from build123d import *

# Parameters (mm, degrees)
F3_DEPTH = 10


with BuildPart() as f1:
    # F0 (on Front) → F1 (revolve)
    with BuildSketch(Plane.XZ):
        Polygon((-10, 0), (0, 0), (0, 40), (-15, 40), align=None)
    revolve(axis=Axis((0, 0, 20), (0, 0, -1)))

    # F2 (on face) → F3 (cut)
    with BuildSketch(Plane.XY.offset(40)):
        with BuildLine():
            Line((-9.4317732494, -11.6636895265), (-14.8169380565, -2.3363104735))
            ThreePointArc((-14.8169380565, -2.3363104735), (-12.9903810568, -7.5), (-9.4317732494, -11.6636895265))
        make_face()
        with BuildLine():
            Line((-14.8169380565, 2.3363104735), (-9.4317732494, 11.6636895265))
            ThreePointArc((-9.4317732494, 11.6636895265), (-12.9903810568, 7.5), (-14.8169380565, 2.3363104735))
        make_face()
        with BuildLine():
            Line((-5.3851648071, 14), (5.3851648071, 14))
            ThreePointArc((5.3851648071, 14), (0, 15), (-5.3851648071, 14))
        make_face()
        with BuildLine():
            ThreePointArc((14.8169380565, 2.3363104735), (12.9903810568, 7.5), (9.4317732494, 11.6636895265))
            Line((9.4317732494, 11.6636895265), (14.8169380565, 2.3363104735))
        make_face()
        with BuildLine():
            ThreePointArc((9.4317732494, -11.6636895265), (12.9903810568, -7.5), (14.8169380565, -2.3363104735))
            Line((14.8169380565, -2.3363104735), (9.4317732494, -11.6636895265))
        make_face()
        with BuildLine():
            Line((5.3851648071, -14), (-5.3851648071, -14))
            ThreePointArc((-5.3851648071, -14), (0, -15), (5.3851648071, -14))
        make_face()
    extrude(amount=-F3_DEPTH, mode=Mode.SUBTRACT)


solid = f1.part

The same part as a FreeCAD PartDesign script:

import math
import FreeCAD as App
import Part
import Sketcher
from FreeCAD import Vector
Q = App.Units.Quantity

doc = App.newDocument("Part")
body = doc.addObject("PartDesign::Body", "Body")

# Sketch on XZ plane
sketch1 = body.newObject("Sketcher::SketchObject", "Sketch")
sketch1.AttachmentSupport = (doc.getObject("XZ_Plane"), [""])
sketch1.MapMode = "FlatFace"
sketch1.addGeometry(Part.LineSegment(Vector(-10, 0, 0), Vector(0, 0, 0)), False)
sketch1.addGeometry(Part.LineSegment(Vector(0, 0, 0), Vector(0, 40, 0)), False)
sketch1.addGeometry(Part.LineSegment(Vector(0, 40, 0), Vector(-15, 40, 0)), False)
sketch1.addGeometry(Part.LineSegment(Vector(-15, 40, 0), Vector(-10, 0, 0)), False)
sketch1.addConstraint(Sketcher.Constraint("Coincident", 0, 2, 1, 1))
sketch1.addConstraint(Sketcher.Constraint("Coincident", 1, 2, 2, 1))
sketch1.addConstraint(Sketcher.Constraint("Coincident", 2, 2, 3, 1))
sketch1.addConstraint(Sketcher.Constraint("Coincident", 3, 2, 0, 1))
sketch1.addConstraint(Sketcher.Constraint("Horizontal", 0))
sketch1.addConstraint(Sketcher.Constraint("Vertical", 1))
sketch1.addConstraint(Sketcher.Constraint("Horizontal", 2))
sketch1.addConstraint(Sketcher.Constraint("Coincident", 0, 2, -1, 1))
sketch1.addConstraint(Sketcher.Constraint("DistanceX", 0, 1, 0, 2, 10.0))
sketch1.addConstraint(Sketcher.Constraint("DistanceX", 2, 2, 2, 1, 15.0))
sketch1.addConstraint(Sketcher.Constraint("DistanceY", 1, 1, 1, 2, 40.0))
revolution = body.newObject("PartDesign::Revolution", "Revolution")
revolution.Profile = sketch1
revolution.ReferenceAxis = (sketch1, ["V_Axis"])
revolution.Angle = 360

# Sketch on XY plane
sketch2 = body.newObject("Sketcher::SketchObject", "Sketch001")
sketch2.AttachmentSupport = (doc.getObject("XY_Plane"), [""])
sketch2.MapMode = "FlatFace"
sketch2.AttachmentOffset = App.Placement(Vector(0, 0, 40), App.Rotation())
sketch2.addGeometry(Part.LineSegment(Vector(-9.431773, -11.66369, 0), Vector(-14.816938, -2.33631, 0)), False)
sketch2.addGeometry(Part.ArcOfCircle(Part.Circle(Vector(0, 0, 0), Vector(0, 0, 1), 15), math.radians(-171.03947), math.radians(-128.96053)), False)
sketch2.addGeometry(Part.LineSegment(Vector(-14.816938, 2.33631, 0), Vector(-9.431773, 11.66369, 0)), False)
sketch2.addGeometry(Part.ArcOfCircle(Part.Circle(Vector(0, 0, 0), Vector(0, 0, 1), 15), math.radians(128.96053), math.radians(171.03947)), False)
sketch2.addGeometry(Part.LineSegment(Vector(-5.385165, 14, 0), Vector(5.385165, 14, 0)), False)
sketch2.addGeometry(Part.ArcOfCircle(Part.Circle(Vector(0, 0, 0), Vector(0, 0, 1), 15), math.radians(68.96053), math.radians(111.03947)), False)
sketch2.addGeometry(Part.ArcOfCircle(Part.Circle(Vector(0, 0, 0), Vector(0, 0, 1), 15), math.radians(8.96053), math.radians(51.03947)), False)
sketch2.addGeometry(Part.LineSegment(Vector(9.431773, 11.66369, 0), Vector(14.816938, 2.33631, 0)), False)
sketch2.addGeometry(Part.ArcOfCircle(Part.Circle(Vector(0, 0, 0), Vector(0, 0, 1), 15), math.radians(-51.03947), math.radians(-8.96053)), False)
sketch2.addGeometry(Part.LineSegment(Vector(14.816938, -2.33631, 0), Vector(9.431773, -11.66369, 0)), False)
sketch2.addGeometry(Part.LineSegment(Vector(5.385165, -14, 0), Vector(-5.385165, -14, 0)), False)
sketch2.addGeometry(Part.ArcOfCircle(Part.Circle(Vector(0, 0, 0), Vector(0, 0, 1), 15), math.radians(-111.03947), math.radians(-68.96053)), False)
sketch2.addConstraint(Sketcher.Constraint("Coincident", 0, 1, 1, 2))
sketch2.addConstraint(Sketcher.Constraint("Coincident", 1, 1, 0, 2))
sketch2.addConstraint(Sketcher.Constraint("Coincident", 2, 1, 3, 2))
sketch2.addConstraint(Sketcher.Constraint("Coincident", 3, 1, 2, 2))
sketch2.addConstraint(Sketcher.Constraint("Coincident", 4, 1, 5, 2))
sketch2.addConstraint(Sketcher.Constraint("Coincident", 5, 1, 4, 2))
sketch2.addConstraint(Sketcher.Constraint("Coincident", 6, 1, 7, 2))
sketch2.addConstraint(Sketcher.Constraint("Coincident", 7, 1, 6, 2))
sketch2.addConstraint(Sketcher.Constraint("Coincident", 8, 1, 9, 2))
sketch2.addConstraint(Sketcher.Constraint("Coincident", 9, 1, 8, 2))
sketch2.addConstraint(Sketcher.Constraint("Coincident", 10, 1, 11, 2))
sketch2.addConstraint(Sketcher.Constraint("Coincident", 11, 1, 10, 2))
sketch2.addConstraint(Sketcher.Constraint("Horizontal", 4))
sketch2.addConstraint(Sketcher.Constraint("Horizontal", 10))
sketch2.addConstraint(Sketcher.Constraint("Coincident", 1, 3, -1, 1))
sketch2.addConstraint(Sketcher.Constraint("Coincident", 3, 3, -1, 1))
sketch2.addConstraint(Sketcher.Constraint("Coincident", 5, 3, -1, 1))
sketch2.addConstraint(Sketcher.Constraint("Coincident", 6, 3, -1, 1))
sketch2.addConstraint(Sketcher.Constraint("Coincident", 8, 3, -1, 1))
sketch2.addConstraint(Sketcher.Constraint("Coincident", 11, 3, -1, 1))
sketch2.addConstraint(Sketcher.Constraint("Equal", 1, 3))
sketch2.addConstraint(Sketcher.Constraint("Equal", 3, 5))
sketch2.addConstraint(Sketcher.Constraint("Equal", 5, 6))
sketch2.addConstraint(Sketcher.Constraint("Equal", 6, 8))
sketch2.addConstraint(Sketcher.Constraint("Equal", 8, 11))
sketch2.addConstraint(Sketcher.Constraint("Parallel", 0, 7))
sketch2.addConstraint(Sketcher.Constraint("Parallel", 2, 9))
sketch2.addConstraint(Sketcher.Constraint("Horizontal", 2, 1, 6, 1))
sketch2.addConstraint(Sketcher.Constraint("Horizontal", 3, 1, 7, 1))
sketch2.addConstraint(Sketcher.Constraint("Horizontal", 0, 1, 8, 1))
sketch2.addConstraint(Sketcher.Constraint("Vertical", 1, 1, 2, 1))
sketch2.addConstraint(Sketcher.Constraint("Vertical", 5, 1, 10, 1))
sketch2.addConstraint(Sketcher.Constraint("Radius", 1, 15.0))
sketch2.addConstraint(Sketcher.Constraint("Angle", 0, Q("120 deg")))
sketch2.addConstraint(Sketcher.Constraint("DistanceY", -1, 1, 4, 1, 14.0))
sketch2.addConstraint(Sketcher.Constraint("Distance", 0, 10.77033))
pocket1 = body.newObject("PartDesign::Pocket", "Pocket")
pocket1.Profile = sketch2
pocket1.Length = 10

doc.recompute()
